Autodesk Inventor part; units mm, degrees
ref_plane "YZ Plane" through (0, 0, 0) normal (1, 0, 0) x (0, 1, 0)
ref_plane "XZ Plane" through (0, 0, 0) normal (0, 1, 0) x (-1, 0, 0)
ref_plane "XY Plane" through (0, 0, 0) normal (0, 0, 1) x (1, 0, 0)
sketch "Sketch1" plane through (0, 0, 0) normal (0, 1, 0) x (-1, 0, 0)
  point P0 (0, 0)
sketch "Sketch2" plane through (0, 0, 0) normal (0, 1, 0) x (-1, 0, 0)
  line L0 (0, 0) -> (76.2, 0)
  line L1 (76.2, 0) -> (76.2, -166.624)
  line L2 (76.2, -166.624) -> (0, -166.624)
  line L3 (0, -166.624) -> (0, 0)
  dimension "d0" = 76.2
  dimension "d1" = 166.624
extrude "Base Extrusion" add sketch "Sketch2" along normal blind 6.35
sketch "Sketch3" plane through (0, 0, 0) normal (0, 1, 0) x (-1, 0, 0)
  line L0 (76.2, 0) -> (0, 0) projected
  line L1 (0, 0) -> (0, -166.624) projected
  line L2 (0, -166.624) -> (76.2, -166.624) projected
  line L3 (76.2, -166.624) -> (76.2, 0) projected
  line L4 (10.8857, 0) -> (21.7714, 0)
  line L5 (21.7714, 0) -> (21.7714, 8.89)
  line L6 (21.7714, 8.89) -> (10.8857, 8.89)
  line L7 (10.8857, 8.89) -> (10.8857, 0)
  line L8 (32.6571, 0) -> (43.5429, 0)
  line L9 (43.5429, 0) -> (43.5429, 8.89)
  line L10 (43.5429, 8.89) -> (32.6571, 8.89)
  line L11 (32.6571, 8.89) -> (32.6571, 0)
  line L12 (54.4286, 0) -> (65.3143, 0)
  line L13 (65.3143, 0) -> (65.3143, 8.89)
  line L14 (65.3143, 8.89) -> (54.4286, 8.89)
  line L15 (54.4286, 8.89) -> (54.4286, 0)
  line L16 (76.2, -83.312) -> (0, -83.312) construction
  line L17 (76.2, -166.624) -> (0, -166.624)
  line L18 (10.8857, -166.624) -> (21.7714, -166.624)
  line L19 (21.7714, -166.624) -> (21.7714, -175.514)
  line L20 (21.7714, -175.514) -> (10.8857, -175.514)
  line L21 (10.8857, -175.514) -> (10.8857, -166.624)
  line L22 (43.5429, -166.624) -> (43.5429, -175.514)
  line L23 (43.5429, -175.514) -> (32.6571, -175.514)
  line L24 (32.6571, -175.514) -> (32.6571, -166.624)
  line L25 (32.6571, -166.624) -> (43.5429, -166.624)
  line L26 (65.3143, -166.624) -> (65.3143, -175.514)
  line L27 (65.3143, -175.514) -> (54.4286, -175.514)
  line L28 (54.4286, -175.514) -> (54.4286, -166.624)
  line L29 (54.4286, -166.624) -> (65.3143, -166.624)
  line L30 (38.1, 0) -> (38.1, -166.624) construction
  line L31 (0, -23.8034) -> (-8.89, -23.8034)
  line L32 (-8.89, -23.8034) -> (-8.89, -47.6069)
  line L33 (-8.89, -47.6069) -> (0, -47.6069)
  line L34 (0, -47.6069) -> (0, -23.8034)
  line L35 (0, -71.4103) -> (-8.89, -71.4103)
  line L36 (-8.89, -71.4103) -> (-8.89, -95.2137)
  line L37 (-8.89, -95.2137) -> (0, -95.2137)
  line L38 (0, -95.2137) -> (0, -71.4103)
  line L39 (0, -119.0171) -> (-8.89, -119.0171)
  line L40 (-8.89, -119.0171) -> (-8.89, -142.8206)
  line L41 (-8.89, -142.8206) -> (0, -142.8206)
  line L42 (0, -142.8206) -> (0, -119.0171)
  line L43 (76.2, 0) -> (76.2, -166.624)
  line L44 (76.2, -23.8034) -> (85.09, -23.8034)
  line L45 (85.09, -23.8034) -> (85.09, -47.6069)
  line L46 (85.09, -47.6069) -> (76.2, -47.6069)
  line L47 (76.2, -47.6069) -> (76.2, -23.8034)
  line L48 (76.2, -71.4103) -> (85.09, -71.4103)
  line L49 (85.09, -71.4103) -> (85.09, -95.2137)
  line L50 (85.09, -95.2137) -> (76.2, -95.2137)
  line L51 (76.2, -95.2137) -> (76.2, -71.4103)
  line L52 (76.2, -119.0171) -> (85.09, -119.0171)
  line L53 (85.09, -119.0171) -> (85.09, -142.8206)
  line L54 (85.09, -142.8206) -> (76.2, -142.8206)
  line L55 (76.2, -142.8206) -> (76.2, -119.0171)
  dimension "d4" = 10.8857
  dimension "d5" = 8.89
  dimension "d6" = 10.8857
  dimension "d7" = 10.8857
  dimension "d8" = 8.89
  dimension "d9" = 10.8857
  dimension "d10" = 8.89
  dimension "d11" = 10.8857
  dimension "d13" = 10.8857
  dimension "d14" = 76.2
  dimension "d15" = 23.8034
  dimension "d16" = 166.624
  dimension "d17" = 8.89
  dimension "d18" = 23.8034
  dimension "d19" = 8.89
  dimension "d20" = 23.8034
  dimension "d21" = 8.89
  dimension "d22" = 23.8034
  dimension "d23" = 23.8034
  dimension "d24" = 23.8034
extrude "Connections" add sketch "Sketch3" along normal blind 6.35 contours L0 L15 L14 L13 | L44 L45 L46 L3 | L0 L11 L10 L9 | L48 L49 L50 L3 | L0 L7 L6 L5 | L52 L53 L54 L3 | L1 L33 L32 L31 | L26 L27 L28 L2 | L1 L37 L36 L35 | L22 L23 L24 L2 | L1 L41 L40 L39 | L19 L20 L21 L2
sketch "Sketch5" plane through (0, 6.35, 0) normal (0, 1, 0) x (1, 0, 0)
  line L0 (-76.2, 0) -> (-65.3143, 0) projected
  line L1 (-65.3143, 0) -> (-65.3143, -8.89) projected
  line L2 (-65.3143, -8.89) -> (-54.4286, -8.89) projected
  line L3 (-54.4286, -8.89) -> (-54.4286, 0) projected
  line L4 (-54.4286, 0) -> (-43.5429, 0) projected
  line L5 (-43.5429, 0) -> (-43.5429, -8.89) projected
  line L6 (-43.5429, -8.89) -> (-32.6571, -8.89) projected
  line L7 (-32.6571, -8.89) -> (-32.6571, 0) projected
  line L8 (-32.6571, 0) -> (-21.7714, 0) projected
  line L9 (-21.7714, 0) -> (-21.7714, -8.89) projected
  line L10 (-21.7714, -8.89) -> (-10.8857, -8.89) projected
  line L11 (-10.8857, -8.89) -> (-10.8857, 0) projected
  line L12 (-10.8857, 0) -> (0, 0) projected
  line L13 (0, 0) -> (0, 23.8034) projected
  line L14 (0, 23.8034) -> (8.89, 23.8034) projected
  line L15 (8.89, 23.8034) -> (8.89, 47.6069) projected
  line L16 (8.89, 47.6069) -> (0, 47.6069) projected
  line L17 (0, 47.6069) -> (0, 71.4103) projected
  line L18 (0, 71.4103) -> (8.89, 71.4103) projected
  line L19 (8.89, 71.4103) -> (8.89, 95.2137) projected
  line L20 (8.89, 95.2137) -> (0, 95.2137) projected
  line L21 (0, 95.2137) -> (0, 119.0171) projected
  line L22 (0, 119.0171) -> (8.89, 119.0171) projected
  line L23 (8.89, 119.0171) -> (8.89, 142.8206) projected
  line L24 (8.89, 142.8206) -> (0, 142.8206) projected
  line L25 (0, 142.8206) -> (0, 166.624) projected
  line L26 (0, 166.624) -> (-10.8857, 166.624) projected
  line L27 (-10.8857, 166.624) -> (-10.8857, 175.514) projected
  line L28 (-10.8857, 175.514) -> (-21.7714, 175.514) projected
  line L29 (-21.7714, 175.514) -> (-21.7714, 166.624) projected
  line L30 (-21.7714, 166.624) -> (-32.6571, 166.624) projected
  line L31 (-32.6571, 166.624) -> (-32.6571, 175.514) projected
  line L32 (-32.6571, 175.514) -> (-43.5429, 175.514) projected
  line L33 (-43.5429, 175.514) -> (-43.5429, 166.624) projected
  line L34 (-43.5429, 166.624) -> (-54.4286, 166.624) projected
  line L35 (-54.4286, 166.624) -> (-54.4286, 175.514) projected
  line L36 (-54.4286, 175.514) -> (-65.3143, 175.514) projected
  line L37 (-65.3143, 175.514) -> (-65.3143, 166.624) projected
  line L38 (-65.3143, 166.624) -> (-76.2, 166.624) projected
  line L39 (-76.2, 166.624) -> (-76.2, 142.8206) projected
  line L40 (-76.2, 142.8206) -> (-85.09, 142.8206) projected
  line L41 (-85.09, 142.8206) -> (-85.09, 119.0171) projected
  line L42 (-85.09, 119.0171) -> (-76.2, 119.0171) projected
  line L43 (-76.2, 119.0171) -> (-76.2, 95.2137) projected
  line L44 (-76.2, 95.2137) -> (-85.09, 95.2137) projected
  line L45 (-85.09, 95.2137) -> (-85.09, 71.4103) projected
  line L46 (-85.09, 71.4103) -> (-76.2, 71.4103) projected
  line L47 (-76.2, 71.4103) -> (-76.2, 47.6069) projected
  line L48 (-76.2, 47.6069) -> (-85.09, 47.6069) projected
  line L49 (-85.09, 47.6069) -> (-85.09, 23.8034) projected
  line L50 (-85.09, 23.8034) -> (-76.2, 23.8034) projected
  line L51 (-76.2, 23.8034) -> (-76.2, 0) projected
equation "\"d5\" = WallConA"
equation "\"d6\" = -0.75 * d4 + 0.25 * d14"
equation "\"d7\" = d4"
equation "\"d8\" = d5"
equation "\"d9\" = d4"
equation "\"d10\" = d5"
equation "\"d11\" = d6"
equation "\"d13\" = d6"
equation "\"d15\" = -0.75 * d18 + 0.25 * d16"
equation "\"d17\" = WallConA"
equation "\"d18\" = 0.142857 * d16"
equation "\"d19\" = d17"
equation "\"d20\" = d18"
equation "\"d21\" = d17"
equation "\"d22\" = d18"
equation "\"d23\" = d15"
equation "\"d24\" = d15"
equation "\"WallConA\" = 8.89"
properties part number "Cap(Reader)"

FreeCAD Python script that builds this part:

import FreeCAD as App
import Part
import Sketcher
Q = App.Units.Quantity

doc = App.newDocument("Part")
params = doc.addObject("Spreadsheet::Sheet", "Params")
for row, (alias, value) in enumerate([
    ("sketch1_width", "3 in"),
    ("sketch1_height", "6.56 in"),
    ("pad1_length", "0.25 in"),
    ("sketch2_width", "0.35 in"),
    ("pad2_length", "0.25 in"),
], start=1):
    params.set(f"A{row}", alias)
    params.set(f"B{row}", "=" + value)
    params.setAlias(f"B{row}", alias)

body = doc.addObject("PartDesign::Body", "Body")

# Sketch on XZ plane
sketch1 = body.newObject("Sketcher::SketchObject", "Sketch")
sketch1.AttachmentSupport = (doc.getObject("XZ_Plane"), [""])
sketch1.MapMode = "FlatFace"
sketch1.addGeometry(Part.LineSegment(App.Vector(-76.2, 0, 0), App.Vector(0, 0, 0)), False)
sketch1.addGeometry(Part.LineSegment(App.Vector(0, 0, 0), App.Vector(0, -166.624, 0)), False)
sketch1.addGeometry(Part.LineSegment(App.Vector(0, -166.624, 0), App.Vector(-76.2, -166.624, 0)), False)
sketch1.addGeometry(Part.LineSegment(App.Vector(-76.2, -166.624, 0), App.Vector(-76.2, 0, 0)), False)
sketch1.addConstraint(Sketcher.Constraint("Coincident", 0, 2, 1, 1))
sketch1.addConstraint(Sketcher.Constraint("Coincident", 1, 2, 2, 1))
sketch1.addConstraint(Sketcher.Constraint("Coincident", 2, 2, 3, 1))
sketch1.addConstraint(Sketcher.Constraint("Coincident", 3, 2, 0, 1))
sketch1.addConstraint(Sketcher.Constraint("Horizontal", 0))
sketch1.addConstraint(Sketcher.Constraint("Vertical", 1))
sketch1.addConstraint(Sketcher.Constraint("Horizontal", 2))
sketch1.addConstraint(Sketcher.Constraint("Vertical", 3))
sketch1.addConstraint(Sketcher.Constraint("Coincident", 0, 2, -1, 1))
sketch1.addConstraint(Sketcher.Constraint("DistanceX", 0, 1, 0, 2, Q("3 in")))
sketch1.addConstraint(Sketcher.Constraint("DistanceY", 1, 2, 1, 1, Q("6.56 in")))
sketch1.setExpression("Constraints[9]", "Params.sketch1_width")
sketch1.setExpression("Constraints[10]", "Params.sketch1_height")
pad1 = body.newObject("PartDesign::Pad", "Pad")
pad1.Profile = sketch1
pad1.setExpression("Length", "Params.pad1_length")
pad1.Reversed = True

# Sketch on XZ plane
sketch2 = body.newObject("Sketcher::SketchObject", "Sketch001")
sketch2.AttachmentSupport = (doc.getObject("XZ_Plane"), [""])
sketch2.MapMode = "FlatFace"
sketch2.addGeometry(Part.LineSegment(App.Vector(-54.4286, 0, 0), App.Vector(-65.3143, 0, 0)), False)
sketch2.addGeometry(Part.LineSegment(App.Vector(-65.3143, 0, 0), App.Vector(-65.3143, 8.89, 0)), False)
sketch2.addGeometry(Part.LineSegment(App.Vector(-65.3143, 8.89, 0), App.Vector(-54.4286, 8.89, 0)), False)
sketch2.addGeometry(Part.LineSegment(App.Vector(-54.4286, 8.89, 0), App.Vector(-54.4286, 0, 0)), False)
sketch2.addGeometry(Part.LineSegment(App.Vector(-85.09, -23.8034, 0), App.Vector(-76.2, -23.8034, 0)), False)
sketch2.addGeometry(Part.LineSegment(App.Vector(-76.2, -23.8034, 0), App.Vector(-76.2, -47.6069, 0)), False)
sketch2.addGeometry(Part.LineSegment(App.Vector(-76.2, -47.6069, 0), App.Vector(-85.09, -47.6069, 0)), False)
sketch2.addGeometry(Part.LineSegment(App.Vector(-85.09, -47.6069, 0), App.Vector(-85.09, -23.8034, 0)), False)
sketch2.addGeometry(Part.LineSegment(App.Vector(-32.6571, 0, 0), App.Vector(-43.5429, 0, 0)), False)
sketch2.addGeometry(Part.LineSegment(App.Vector(-43.5429, 0, 0), App.Vector(-43.5429, 8.89, 0)), False)
sketch2.addGeometry(Part.LineSegment(App.Vector(-43.5429, 8.89, 0), App.Vector(-32.6571, 8.89, 0)), False)
sketch2.addGeometry(Part.LineSegment(App.Vector(-32.6571, 8.89, 0), App.Vector(-32.6571, 0, 0)), False)
sketch2.addGeometry(Part.LineSegment(App.Vector(-85.09, -71.4103, 0), App.Vector(-76.2, -71.4103, 0)), False)
sketch2.addGeometry(Part.LineSegment(App.Vector(-76.2, -71.4103, 0), App.Vector(-76.2, -95.2137, 0)), False)
sketch2.addGeometry(Part.LineSegment(App.Vector(-76.2, -95.2137, 0), App.Vector(-85.09, -95.2137, 0)), False)
sketch2.addGeometry(Part.LineSegment(App.Vector(-85.09, -95.2137, 0), App.Vector(-85.09, -71.4103, 0)), False)
sketch2.addGeometry(Part.LineSegment(App.Vector(-10.8857, 0, 0), App.Vector(-21.7714, 0, 0)), False)
sketch2.addGeometry(Part.LineSegment(App.Vector(-21.7714, 0, 0), App.Vector(-21.7714, 8.89, 0)), False)
sketch2.addGeometry(Part.LineSegment(App.Vector(-21.7714, 8.89, 0), App.Vector(-10.8857, 8.89, 0)), False)
sketch2.addGeometry(Part.LineSegment(App.Vector(-10.8857, 8.89, 0), App.Vector(-10.8857, 0, 0)), False)
sketch2.addGeometry(Part.LineSegment(App.Vector(-85.09, -119.0171, 0), App.Vector(-76.2, -119.0171, 0)), False)
sketch2.addGeometry(Part.LineSegment(App.Vector(-76.2, -119.0171, 0), App.Vector(-76.2, -142.8206, 0)), False)
sketch2.addGeometry(Part.LineSegment(App.Vector(-76.2, -142.8206, 0), App.Vector(-85.09, -142.8206, 0)), False)
sketch2.addGeometry(Part.LineSegment(App.Vector(-85.09, -142.8206, 0), App.Vector(-85.09, -119.0171, 0)), False)
sketch2.addGeometry(Part.LineSegment(App.Vector(0, -47.6069, 0), App.Vector(0, -23.8034, 0)), False)
sketch2.addGeometry(Part.LineSegment(App.Vector(0, -23.8034, 0), App.Vector(8.89, -23.8034, 0)), False)
sketch2.addGeometry(Part.LineSegment(App.Vector(8.89, -23.8034, 0), App.Vector(8.89, -47.6069, 0)), False)
sketch2.addGeometry(Part.LineSegment(App.Vector(8.89, -47.6069, 0), App.Vector(0, -47.6069, 0)), False)
sketch2.addGeometry(Part.LineSegment(App.Vector(-65.3143, -175.514, 0), App.Vector(-65.3143, -166.624, 0)), False)
sketch2.addGeometry(Part.LineSegment(App.Vector(-65.3143, -166.624, 0), App.Vector(-54.4286, -166.624, 0)), False)
sketch2.addGeometry(Part.LineSegment(App.Vector(-54.4286, -166.624, 0), App.Vector(-54.4286, -175.514, 0)), False)
sketch2.addGeometry(Part.LineSegment(App.Vector(-54.4286, -175.514, 0), App.Vector(-65.3143, -175.514, 0)), False)
sketch2.addGeometry(Part.LineSegment(App.Vector(0, -95.2137, 0), App.Vector(0, -71.4103, 0)), False)
sketch2.addGeometry(Part.LineSegment(App.Vector(0, -71.4103, 0), App.Vector(8.89, -71.4103, 0)), False)
sketch2.addGeometry(Part.LineSegment(App.Vector(8.89, -71.4103, 0), App.Vector(8.89, -95.2137, 0)), False)
sketch2.addGeometry(Part.LineSegment(App.Vector(8.89, -95.2137, 0), App.Vector(0, -95.2137, 0)), False)
sketch2.addGeometry(Part.LineSegment(App.Vector(-43.5429, -175.514, 0), App.Vector(-43.5429, -166.624, 0)), False)
sketch2.addGeometry(Part.LineSegment(App.Vector(-43.5429, -166.624, 0), App.Vector(-32.6571, -166.624, 0)), False)
sketch2.addGeometry(Part.LineSegment(App.Vector(-32.6571, -166.624, 0), App.Vector(-32.6571, -175.514, 0)), False)
sketch2.addGeometry(Part.LineSegment(App.Vector(-32.6571, -175.514, 0), App.Vector(-43.5429, -175.514, 0)), False)
sketch2.addGeometry(Part.LineSegment(App.Vector(0, -142.8206, 0), App.Vector(0, -119.0171, 0)), False)
sketch2.addGeometry(Part.LineSegment(App.Vector(0, -119.0171, 0), App.Vector(8.89, -119.0171, 0)), False)
sketch2.addGeometry(Part.LineSegment(App.Vector(8.89, -119.0171, 0), App.Vector(8.89, -142.8206, 0)), False)
sketch2.addGeometry(Part.LineSegment(App.Vector(8.89, -142.8206, 0), App.Vector(0, -142.8206, 0)), False)
sketch2.addGeometry(Part.LineSegment(App.Vector(-21.7714, -175.514, 0), App.Vector(-21.7714, -166.624, 0)), False)
sketch2.addGeometry(Part.LineSegment(App.Vector(-21.7714, -166.624, 0), App.Vector(-10.8857, -166.624, 0)), False)
sketch2.addGeometry(Part.LineSegment(App.Vector(-10.8857, -166.624, 0), App.Vector(-10.8857, -175.514, 0)), False)
sketch2.addGeometry(Part.LineSegment(App.Vector(-10.8857, -175.514, 0), App.Vector(-21.7714, -175.514, 0)), False)
sketch2.addConstraint(Sketcher.Constraint("Coincident", 0, 2, 1, 1))
sketch2.addConstraint(Sketcher.Constraint("Coincident", 1, 2, 2, 1))
sketch2.addConstraint(Sketcher.Constraint("Coincident", 2, 2, 3, 1))
sketch2.addConstraint(Sketcher.Constraint("Coincident", 3, 2, 0, 1))
sketch2.addConstraint(Sketcher.Constraint("Coincident", 4, 2, 5, 1))
sketch2.addConstraint(Sketcher.Constraint("Coincident", 5, 2, 6, 1))
sketch2.addConstraint(Sketcher.Constraint("Coincident", 6, 2, 7, 1))
sketch2.addConstraint(Sketcher.Constraint("Coincident", 7, 2, 4, 1))
sketch2.addConstraint(Sketcher.Constraint("Coincident", 8, 2, 9, 1))
sketch2.addConstraint(Sketcher.Constraint("Coincident", 9, 2, 10, 1))
sketch2.addConstraint(Sketcher.Constraint("Coincident", 10, 2, 11, 1))
sketch2.addConstraint(Sketcher.Constraint("Coincident", 11, 2, 8, 1))
sketch2.addConstraint(Sketcher.Constraint("Coincident", 12, 2, 13, 1))
sketch2.addConstraint(Sketcher.Constraint("Coincident", 13, 2, 14, 1))
sketch2.addConstraint(Sketcher.Constraint("Coincident", 14, 2, 15, 1))
sketch2.addConstraint(Sketcher.Constraint("Coincident", 15, 2, 12, 1))
sketch2.addConstraint(Sketcher.Constraint("Coincident", 16, 2, 17, 1))
sketch2.addConstraint(Sketcher.Constraint("Coincident", 17, 2, 18, 1))
sketch2.addConstraint(Sketcher.Constraint("Coincident", 18, 2, 19, 1))
sketch2.addConstraint(Sketcher.Constraint("Coincident", 19, 2, 16, 1))
sketch2.addConstraint(Sketcher.Constraint("Coincident", 20, 2, 21, 1))
sketch2.addConstraint(Sketcher.Constraint("Coincident", 21, 2, 22, 1))
sketch2.addConstraint(Sketcher.Constraint("Coincident", 22, 2, 23, 1))
sketch2.addConstraint(Sketcher.Constraint("Coincident", 23, 2, 20, 1))
sketch2.addConstraint(Sketcher.Constraint("Coincident", 24, 2, 25, 1))
sketch2.addConstraint(Sketcher.Constraint("Coincident", 25, 2, 26, 1))
sketch2.addConstraint(Sketcher.Constraint("Coincident", 26, 2, 27, 1))
sketch2.addConstraint(Sketcher.Constraint("Coincident", 27, 2, 24, 1))
sketch2.addConstraint(Sketcher.Constraint("Coincident", 28, 2, 29, 1))
sketch2.addConstraint(Sketcher.Constraint("Coincident", 29, 2, 30, 1))
sketch2.addConstraint(Sketcher.Constraint("Coincident", 30, 2, 31, 1))
sketch2.addConstraint(Sketcher.Constraint("Coincident", 31, 2, 28, 1))
sketch2.addConstraint(Sketcher.Constraint("Coincident", 32, 2, 33, 1))
sketch2.addConstraint(Sketcher.Constraint("Coincident", 33, 2, 34, 1))
sketch2.addConstraint(Sketcher.Constraint("Coincident", 34, 2, 35, 1))
sketch2.addConstraint(Sketcher.Constraint("Coincident", 35, 2, 32, 1))
sketch2.addConstraint(Sketcher.Constraint("Coincident", 36, 2, 37, 1))
sketch2.addConstraint(Sketcher.Constraint("Coincident", 37, 2, 38, 1))
sketch2.addConstraint(Sketcher.Constraint("Coincident", 38, 2, 39, 1))
sketch2.addConstraint(Sketcher.Constraint("Coincident", 39, 2, 36, 1))
sketch2.addConstraint(Sketcher.Constraint("Coincident", 40, 2, 41, 1))
sketch2.addConstraint(Sketcher.Constraint("Coincident", 41, 2, 42, 1))
sketch2.addConstraint(Sketcher.Constraint("Coincident", 42, 2, 43, 1))
sketch2.addConstraint(Sketcher.Constraint("Coincident", 43, 2, 40, 1))
sketch2.addConstraint(Sketcher.Constraint("Coincident", 44, 2, 45, 1))
sketch2.addConstraint(Sketcher.Constraint("Coincident", 45, 2, 46, 1))
sketch2.addConstraint(Sketcher.Constraint("Coincident", 46, 2, 47, 1))
sketch2.addConstraint(Sketcher.Constraint("Coincident", 47, 2, 44, 1))
sketch2.addConstraint(Sketcher.Constraint("Horizontal", 0))
sketch2.addConstraint(Sketcher.Constraint("Vertical", 1))
sketch2.addConstraint(Sketcher.Constraint("Horizontal", 2))
sketch2.addConstraint(Sketcher.Constraint("Vertical", 3))
sketch2.addConstraint(Sketcher.Constraint("Horizontal", 4))
sketch2.addConstraint(Sketcher.Constraint("Vertical", 5))
sketch2.addConstraint(Sketcher.Constraint("Horizontal", 6))
sketch2.addConstraint(Sketcher.Constraint("Vertical", 7))
sketch2.addConstraint(Sketcher.Constraint("Horizontal", 8))
sketch2.addConstraint(Sketcher.Constraint("Vertical", 9))
sketch2.addConstraint(Sketcher.Constraint("Horizontal", 10))
sketch2.addConstraint(Sketcher.Constraint("Vertical", 11))
sketch2.addConstraint(Sketcher.Constraint("Horizontal", 12))
sketch2.addConstraint(Sketcher.Constraint("Vertical", 13))
sketch2.addConstraint(Sketcher.Constraint("Horizontal", 14))
sketch2.addConstraint(Sketcher.Constraint("Vertical", 15))
sketch2.addConstraint(Sketcher.Constraint("Horizontal", 16))
sketch2.addConstraint(Sketcher.Constraint("Vertical", 17))
sketch2.addConstraint(Sketcher.Constraint("Horizontal", 18))
sketch2.addConstraint(Sketcher.Constraint("Vertical", 19))
sketch2.addConstraint(Sketcher.Constraint("Horizontal", 20))
sketch2.addConstraint(Sketcher.Constraint("Vertical", 21))
sketch2.addConstraint(Sketcher.Constraint("Horizontal", 22))
sketch2.addConstraint(Sketcher.Constraint("Vertical", 23))
sketch2.addConstraint(Sketcher.Constraint("Vertical", 24))
sketch2.addConstraint(Sketcher.Constraint("Horizontal", 25))
sketch2.addConstraint(Sketcher.Constraint("Vertical", 26))
sketch2.addConstraint(Sketcher.Constraint("Horizontal", 27))
sketch2.addConstraint(Sketcher.Constraint("Vertical", 28))
sketch2.addConstraint(Sketcher.Constraint("Horizontal", 29))
sketch2.addConstraint(Sketcher.Constraint("Vertical", 30))
sketch2.addConstraint(Sketcher.Constraint("Horizontal", 31))
sketch2.addConstraint(Sketcher.Constraint("Vertical", 32))
sketch2.addConstraint(Sketcher.Constraint("Horizontal", 33))
sketch2.addConstraint(Sketcher.Constraint("Vertical", 34))
sketch2.addConstraint(Sketcher.Constraint("Horizontal", 35))
sketch2.addConstraint(Sketcher.Constraint("Vertical", 36))
sketch2.addConstraint(Sketcher.Constraint("Horizontal", 37))
sketch2.addConstraint(Sketcher.Constraint("Vertical", 38))
sketch2.addConstraint(Sketcher.Constraint("Horizontal", 39))
sketch2.addConstraint(Sketcher.Constraint("Vertical", 40))
sketch2.addConstraint(Sketcher.Constraint("Horizontal", 41))
sketch2.addConstraint(Sketcher.Constraint("Vertical", 42))
sketch2.addConstraint(Sketcher.Constraint("Horizontal", 43))
sketch2.addConstraint(Sketcher.Constraint("Vertical", 44))
sketch2.addConstraint(Sketcher.Constraint("Horizontal", 45))
sketch2.addConstraint(Sketcher.Constraint("Vertical", 46))
sketch2.addConstraint(Sketcher.Constraint("Horizontal", 47))
sketch2.addConstraint(Sketcher.Constraint("PointOnObject", 0, 2, -1))
sketch2.addConstraint(Sketcher.Constraint("PointOnObject", 8, 2, -1))
sketch2.addConstraint(Sketcher.Constraint("PointOnObject", 16, 2, -1))
sketch2.addConstraint(Sketcher.Constraint("PointOnObject", 24, 2, -2))
sketch2.addConstraint(Sketcher.Constraint("PointOnObject", 32, 2, -2))
sketch2.addConstraint(Sketcher.Constraint("PointOnObject", 40, 2, -2))
sketch2.addConstraint(Sketcher.Constraint("Horizontal", 2, 2, 9, 2))
sketch2.addConstraint(Sketcher.Constraint("Horizontal", 10, 2, 17, 2))
sketch2.addConstraint(Sketcher.Constraint("Horizontal", 7, 2, 24, 2))
sketch2.addConstraint(Sketcher.Constraint("Horizontal", 6, 2, 26, 2))
sketch2.addConstraint(Sketcher.Constraint("Horizontal", 15, 2, 32, 2))
sketch2.addConstraint(Sketcher.Constraint("Horizontal", 14, 2, 34, 2))
sketch2.addConstraint(Sketcher.Constraint("Horizontal", 29, 2, 36, 2))
sketch2.addConstraint(Sketcher.Constraint("Horizontal", 31, 2, 38, 2))
sketch2.addConstraint(Sketcher.Constraint("Horizontal", 23, 2, 40, 2))
sketch2.addConstraint(Sketcher.Constraint("Horizontal", 22, 2, 42, 2))
sketch2.addConstraint(Sketcher.Constraint("Horizontal", 37, 2, 44, 2))
sketch2.addConstraint(Sketcher.Constraint("Horizontal", 39, 2, 46, 2))
sketch2.addConstraint(Sketcher.Constraint("Vertical", 5, 2, 12, 2))
sketch2.addConstraint(Sketcher.Constraint("Vertical", 7, 2, 14, 2))
sketch2.addConstraint(Sketcher.Constraint("Vertical", 13, 2, 20, 2))
sketch2.addConstraint(Sketcher.Constraint("Vertical", 15, 2, 22, 2))
sketch2.addConstraint(Sketcher.Constraint("Vertical", 1, 2, 28, 2))
sketch2.addConstraint(Sketcher.Constraint("Vertical", 3, 2, 29, 2))
sketch2.addConstraint(Sketcher.Constraint("Vertical", 26, 2, 33, 2))
sketch2.addConstraint(Sketcher.Constraint("Vertical", 9, 2, 36, 2))
sketch2.addConstraint(Sketcher.Constraint("Vertical", 11, 2, 37, 2))
sketch2.addConstraint(Sketcher.Constraint("Vertical", 34, 2, 41, 2))
sketch2.addConstraint(Sketcher.Constraint("Vertical", 17, 2, 44, 2))
sketch2.addConstraint(Sketcher.Constraint("Vertical", 19, 2, 45, 2))
sketch2.addConstraint(Sketcher.Constraint("Equal", 2, 8))
sketch2.addConstraint(Sketcher.Constraint("Equal", 10, 16))
sketch2.addConstraint(Sketcher.Constraint("Equal", 22, 25))
sketch2.addConstraint(Sketcher.Constraint("Equal", 43, 1))
sketch2.addConstraint(Sketcher.Constraint("Equal", 7, 13))
sketch2.addConstraint(Sketcher.Constraint("Equal", 15, 21))
sketch2.addConstraint(Sketcher.Constraint("Equal", 19, 28))
sketch2.addConstraint(Sketcher.Constraint("DistanceX", 4, 2, -1, 1, Q("3 in")))
sketch2.addConstraint(Sketcher.Constraint("DistanceX", 4, 1, 4, 2, Q("0.35 in")))
sketch2.addConstraint(Sketcher.Constraint("DistanceY", 28, 2, -1, 1, Q("6.56 in")))
sketch2.addConstraint(Sketcher.Constraint("DistanceX", 0, 2, 0, 1, Q("10.8857 mm")))
sketch2.addConstraint(Sketcher.Constraint("DistanceY", 5, 2, 5, 1, Q("23.8035 mm")))
sketch2.addConstraint(Sketcher.Constraint("DistanceY", 4, 2, -1, 1, Q("23.8034 mm")))
sketch2.addConstraint(Sketcher.Constraint("DistanceX", 18, 2, -1, 1, Q("10.8857 mm")))
sketch2.addConstraint(Sketcher.Constraint("DistanceX", 4, 2, 0, 2, Q("10.8857 mm")))
sketch2.addConstraint(Sketcher.Constraint("DistanceX", 3, 2, 8, 2, Q("10.8857 mm")))
sketch2.addConstraint(Sketcher.Constraint("DistanceY", 12, 2, 5, 2, Q("23.8034 mm")))
sketch2.addConstraint(Sketcher.Constraint("DistanceY", 20, 2, 13, 2, Q("23.8034 mm")))
sketch2.setExpression("Constraints[134]", "Params.sketch2_width")
pad2 = body.newObject("PartDesign::Pad", "Pad001")
pad2.Profile = sketch2
pad2.setExpression("Length", "Params.pad2_length")
pad2.Reversed = True

doc.recompute()
